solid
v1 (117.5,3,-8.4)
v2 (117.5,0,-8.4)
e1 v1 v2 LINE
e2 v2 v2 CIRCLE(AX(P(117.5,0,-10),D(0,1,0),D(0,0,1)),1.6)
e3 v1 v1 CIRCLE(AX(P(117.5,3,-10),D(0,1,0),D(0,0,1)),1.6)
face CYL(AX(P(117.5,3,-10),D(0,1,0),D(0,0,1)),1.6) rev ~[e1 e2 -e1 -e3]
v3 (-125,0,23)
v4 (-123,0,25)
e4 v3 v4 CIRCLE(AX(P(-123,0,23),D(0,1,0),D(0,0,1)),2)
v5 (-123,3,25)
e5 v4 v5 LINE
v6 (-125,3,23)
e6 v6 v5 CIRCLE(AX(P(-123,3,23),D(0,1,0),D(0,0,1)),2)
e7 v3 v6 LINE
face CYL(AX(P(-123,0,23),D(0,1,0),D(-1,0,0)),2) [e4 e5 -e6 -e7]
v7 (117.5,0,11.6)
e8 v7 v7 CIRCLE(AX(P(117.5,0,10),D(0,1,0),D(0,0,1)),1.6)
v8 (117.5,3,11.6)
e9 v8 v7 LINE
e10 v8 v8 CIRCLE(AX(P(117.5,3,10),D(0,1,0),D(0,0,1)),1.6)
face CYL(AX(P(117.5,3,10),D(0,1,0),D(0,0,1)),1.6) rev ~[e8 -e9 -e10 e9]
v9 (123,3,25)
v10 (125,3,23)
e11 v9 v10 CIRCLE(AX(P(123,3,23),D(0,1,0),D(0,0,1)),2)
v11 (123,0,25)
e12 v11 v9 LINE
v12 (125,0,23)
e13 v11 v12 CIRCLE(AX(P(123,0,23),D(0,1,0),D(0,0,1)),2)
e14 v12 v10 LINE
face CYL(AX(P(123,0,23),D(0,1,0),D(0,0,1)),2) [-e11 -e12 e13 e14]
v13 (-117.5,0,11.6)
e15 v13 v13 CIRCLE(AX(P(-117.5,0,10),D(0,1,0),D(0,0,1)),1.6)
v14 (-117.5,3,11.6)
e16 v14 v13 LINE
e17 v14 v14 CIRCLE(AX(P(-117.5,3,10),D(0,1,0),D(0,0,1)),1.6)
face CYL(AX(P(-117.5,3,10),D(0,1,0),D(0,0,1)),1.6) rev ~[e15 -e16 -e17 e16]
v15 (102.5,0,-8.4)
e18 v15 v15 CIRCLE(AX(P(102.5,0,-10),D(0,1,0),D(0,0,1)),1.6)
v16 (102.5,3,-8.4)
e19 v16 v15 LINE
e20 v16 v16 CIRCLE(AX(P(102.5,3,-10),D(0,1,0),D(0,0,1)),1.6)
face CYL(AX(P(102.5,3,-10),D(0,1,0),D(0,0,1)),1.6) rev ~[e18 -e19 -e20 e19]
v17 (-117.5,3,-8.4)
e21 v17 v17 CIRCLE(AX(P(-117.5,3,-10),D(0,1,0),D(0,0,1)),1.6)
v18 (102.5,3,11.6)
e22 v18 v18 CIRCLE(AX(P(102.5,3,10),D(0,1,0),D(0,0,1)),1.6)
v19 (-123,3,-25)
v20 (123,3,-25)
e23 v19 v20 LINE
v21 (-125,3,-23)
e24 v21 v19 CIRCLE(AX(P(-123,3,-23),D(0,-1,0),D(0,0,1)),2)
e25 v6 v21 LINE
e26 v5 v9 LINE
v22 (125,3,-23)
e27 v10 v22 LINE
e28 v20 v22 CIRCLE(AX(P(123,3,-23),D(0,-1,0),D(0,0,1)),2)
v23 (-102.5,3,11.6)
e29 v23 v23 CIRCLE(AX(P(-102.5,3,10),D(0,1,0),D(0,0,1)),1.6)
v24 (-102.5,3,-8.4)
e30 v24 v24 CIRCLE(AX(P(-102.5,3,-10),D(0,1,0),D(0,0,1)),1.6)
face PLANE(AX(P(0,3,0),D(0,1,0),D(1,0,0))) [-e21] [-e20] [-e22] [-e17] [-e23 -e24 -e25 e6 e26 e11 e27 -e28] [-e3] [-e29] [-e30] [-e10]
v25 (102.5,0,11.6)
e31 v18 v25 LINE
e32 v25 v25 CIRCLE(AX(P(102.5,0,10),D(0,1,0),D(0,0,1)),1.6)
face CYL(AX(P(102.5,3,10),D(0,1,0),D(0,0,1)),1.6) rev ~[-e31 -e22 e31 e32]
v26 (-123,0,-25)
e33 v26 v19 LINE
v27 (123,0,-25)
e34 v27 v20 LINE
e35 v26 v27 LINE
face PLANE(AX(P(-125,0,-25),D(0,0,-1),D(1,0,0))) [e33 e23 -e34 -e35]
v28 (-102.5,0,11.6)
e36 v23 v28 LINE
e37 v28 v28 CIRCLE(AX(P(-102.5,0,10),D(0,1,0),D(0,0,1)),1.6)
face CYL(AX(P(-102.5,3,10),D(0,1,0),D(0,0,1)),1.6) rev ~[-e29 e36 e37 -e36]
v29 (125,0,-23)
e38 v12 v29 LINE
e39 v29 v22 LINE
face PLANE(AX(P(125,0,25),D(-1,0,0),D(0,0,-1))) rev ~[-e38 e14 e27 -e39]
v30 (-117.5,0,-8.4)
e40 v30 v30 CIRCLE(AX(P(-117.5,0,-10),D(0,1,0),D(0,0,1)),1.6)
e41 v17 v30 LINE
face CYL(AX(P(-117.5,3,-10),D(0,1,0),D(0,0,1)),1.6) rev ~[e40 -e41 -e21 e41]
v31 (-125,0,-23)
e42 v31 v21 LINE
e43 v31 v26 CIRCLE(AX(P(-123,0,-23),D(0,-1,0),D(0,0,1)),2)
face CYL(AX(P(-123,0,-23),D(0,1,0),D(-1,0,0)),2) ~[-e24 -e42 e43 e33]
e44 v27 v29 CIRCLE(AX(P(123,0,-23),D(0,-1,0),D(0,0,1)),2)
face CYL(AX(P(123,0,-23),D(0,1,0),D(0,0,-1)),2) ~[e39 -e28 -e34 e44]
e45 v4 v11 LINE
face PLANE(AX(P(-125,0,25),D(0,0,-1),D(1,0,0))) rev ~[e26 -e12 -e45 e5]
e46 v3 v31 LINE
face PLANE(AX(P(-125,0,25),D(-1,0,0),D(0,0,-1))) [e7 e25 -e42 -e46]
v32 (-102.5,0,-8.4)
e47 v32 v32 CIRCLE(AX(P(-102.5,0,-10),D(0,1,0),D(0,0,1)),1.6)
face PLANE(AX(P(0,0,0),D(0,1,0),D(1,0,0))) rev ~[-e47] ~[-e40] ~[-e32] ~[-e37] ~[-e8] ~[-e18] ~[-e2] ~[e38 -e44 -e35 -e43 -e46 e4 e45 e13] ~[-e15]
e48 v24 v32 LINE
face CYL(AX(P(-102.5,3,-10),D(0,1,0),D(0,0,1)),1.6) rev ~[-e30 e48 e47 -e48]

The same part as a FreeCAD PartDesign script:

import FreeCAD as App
import Part
import Sketcher
from FreeCAD import Vector
Q = App.Units.Quantity


def edges_at(feature, points):
    """Names of the edges that pass closest to the given points."""
    edges = feature.Shape.Edges
    near = lambda p: min(range(len(edges)), key=lambda i: edges[i].distToShape(Part.Vertex(*p))[0])
    return sorted({f"Edge{near(p) + 1}" for p in points})


def add_polygon(sketch, points):
    """Adds a closed chain of lines whose ends are joined by coincident constraints."""
    first, n = sketch.GeometryCount, len(points)
    for a, b in zip(points, points[1:] + points[:1]):
        sketch.addGeometry(Part.LineSegment(App.Vector(*a, 0), App.Vector(*b, 0)), False)
    for i in range(n):
        sketch.addConstraint(Sketcher.Constraint("Coincident", first + i, 2, first + (i + 1) % n, 1))

doc = App.newDocument("Part")
body = doc.addObject("PartDesign::Body", "Body")

sketch1 = doc.addObject("Sketcher::SketchObject", "Sketch")
body.addObject(sketch1)
sketch1.AttachmentSupport = (doc.XZ_Plane, [""])
sketch1.MapMode = "FlatFace"
add_polygon(sketch1, [(-125, -25), (-125, 25), (125, 25), (125, -25)])
sketch1.addConstraint([
    Sketcher.Constraint("Vertical", 0),
    Sketcher.Constraint("Horizontal", 1),
    Sketcher.Constraint("Vertical", 2),
    Sketcher.Constraint("Horizontal", 3),
    Sketcher.Constraint("Symmetric", 0, 2, 2, 2, -1, 1),
    Sketcher.Constraint("DistanceX", 1, 1, 1, 2, Q("250 mm")),
    Sketcher.Constraint("DistanceY", 0, 1, 0, 2, Q("50 mm")),
])
pad1 = doc.addObject("PartDesign::Pad", "Pad")
body.addObject(pad1)
pad1.Profile = sketch1
pad1.Length = 3
pad1.Reversed = True

sketch2 = doc.addObject("Sketcher::SketchObject", "Sketch001")
body.addObject(sketch2)
sketch2.AttachmentSupport = (doc.XZ_Plane, [""])
sketch2.MapMode = "FlatFace"
sketch2.AttachmentOffset = App.Placement(Vector(0, 0, -3), App.Rotation())
sketch2.addGeometry(Part.Circle(Vector(-117.5, -10, 0), Vector(0, 0, 1), 1.6), False)
sketch2.addConstraint([
    Sketcher.Constraint("Diameter", 0, Q("3.2 mm")),
    Sketcher.Constraint("DistanceY", 0, 3, -1, 1, Q("10 mm")),
    Sketcher.Constraint("DistanceX", 0, 3, -1, 1, Q("117.5 mm")),
])
pocket1 = doc.addObject("PartDesign::Pocket", "Pocket")
body.addObject(pocket1)
pocket1.Profile = sketch2
pocket1.Type = "UpToFirst"
pocket1.Reversed = True

sketch3 = doc.addObject("Sketcher::SketchObject", "Sketch002")
body.addObject(sketch3)
sketch3.AttachmentSupport = (doc.XZ_Plane, [""])
sketch3.MapMode = "FlatFace"
sketch3.AttachmentOffset = App.Placement(Vector(0, 0, -3), App.Rotation())
sketch3.addGeometry(Part.Circle(Vector(-102.5, -10, 0), Vector(0, 0, 1), 1.6), False)
sketch3.addConstraint([
    Sketcher.Constraint("Diameter", 0, Q("3.2 mm")),
    Sketcher.Constraint("DistanceY", 0, 3, -1, 1, Q("10 mm")),
    Sketcher.Constraint("DistanceX", 0, 3, -1, 1, Q("102.5 mm")),
])
pocket2 = doc.addObject("PartDesign::Pocket", "Pocket001")
body.addObject(pocket2)
pocket2.Profile = sketch3
pocket2.Type = "UpToFirst"
pocket2.Reversed = True

sketch4 = doc.addObject("Sketcher::SketchObject", "Sketch003")
body.addObject(sketch4)
sketch4.AttachmentSupport = (doc.XZ_Plane, [""])
sketch4.MapMode = "FlatFace"
sketch4.AttachmentOffset = App.Placement(Vector(0, 0, -3), App.Rotation())
sketch4.addGeometry(Part.Circle(Vector(-102.5, 10, 0), Vector(0, 0, 1), 1.6), False)
sketch4.addConstraint([
    Sketcher.Constraint("Diameter", 0, Q("3.2 mm")),
    Sketcher.Constraint("DistanceY", -1, 1, 0, 3, Q("10 mm")),
    Sketcher.Constraint("DistanceX", 0, 3, -1, 1, Q("102.5 mm")),
])
pocket3 = doc.addObject("PartDesign::Pocket", "Pocket002")
body.addObject(pocket3)
pocket3.Profile = sketch4
pocket3.Type = "UpToFirst"
pocket3.Reversed = True

sketch5 = doc.addObject("Sketcher::SketchObject", "Sketch004")
body.addObject(sketch5)
sketch5.AttachmentSupport = (doc.XZ_Plane, [""])
sketch5.MapMode = "FlatFace"
sketch5.AttachmentOffset = App.Placement(Vector(0, 0, -3), App.Rotation())
sketch5.addGeometry(Part.Circle(Vector(-117.5, 10, 0), Vector(0, 0, 1), 1.6), False)
sketch5.addConstraint([
    Sketcher.Constraint("Diameter", 0, Q("3.2 mm")),
    Sketcher.Constraint("DistanceY", -1, 1, 0, 3, Q("10 mm")),
    Sketcher.Constraint("DistanceX", 0, 3, -1, 1, Q("117.5 mm")),
])
pocket4 = doc.addObject("PartDesign::Pocket", "Pocket003")
body.addObject(pocket4)
pocket4.Profile = sketch5
pocket4.Type = "UpToFirst"
pocket4.Reversed = True

sketch6 = doc.addObject("Sketcher::SketchObject", "Sketch005")
body.addObject(sketch6)
sketch6.AttachmentSupport = (doc.XZ_Plane, [""])
sketch6.MapMode = "FlatFace"
sketch6.AttachmentOffset = App.Placement(Vector(0, 0, -3), App.Rotation())
sketch6.addGeometry(Part.Circle(Vector(117.5, 10, 0), Vector(0, 0, 1), 1.6), False)
sketch6.addConstraint([
    Sketcher.Constraint("Diameter", 0, Q("3.2 mm")),
    Sketcher.Constraint("DistanceY", -1, 1, 0, 3, Q("10 mm")),
    Sketcher.Constraint("DistanceX", -1, 1, 0, 3, Q("117.5 mm")),
])
pocket5 = doc.addObject("PartDesign::Pocket", "Pocket004")
body.addObject(pocket5)
pocket5.Profile = sketch6
pocket5.Type = "UpToFirst"
pocket5.Reversed = True

sketch7 = doc.addObject("Sketcher::SketchObject", "Sketch006")
body.addObject(sketch7)
sketch7.AttachmentSupport = (doc.XZ_Plane, [""])
sketch7.MapMode = "FlatFace"
sketch7.AttachmentOffset = App.Placement(Vector(0, 0, -3), App.Rotation())
sketch7.addGeometry(Part.Circle(Vector(102.5, -10, 0), Vector(0, 0, 1), 1.6), False)
sketch7.addConstraint([
    Sketcher.Constraint("Diameter", 0, Q("3.2 mm")),
    Sketcher.Constraint("DistanceY", 0, 3, -1, 1, Q("10 mm")),
    Sketcher.Constraint("DistanceX", -1, 1, 0, 3, Q("102.5 mm")),
])
pocket6 = doc.addObject("PartDesign::Pocket", "Pocket005")
body.addObject(pocket6)
pocket6.Profile = sketch7
pocket6.Type = "UpToFirst"
pocket6.Reversed = True

sketch8 = doc.addObject("Sketcher::SketchObject", "Sketch007")
body.addObject(sketch8)
sketch8.AttachmentSupport = (doc.XZ_Plane, [""])
sketch8.MapMode = "FlatFace"
sketch8.AttachmentOffset = App.Placement(Vector(0, 0, -3), App.Rotation())
sketch8.addGeometry(Part.Circle(Vector(117.5, -10, 0), Vector(0, 0, 1), 1.6), False)
sketch8.addConstraint([
    Sketcher.Constraint("Diameter", 0, Q("3.2 mm")),
    Sketcher.Constraint("DistanceY", 0, 3, -1, 1, Q("10 mm")),
    Sketcher.Constraint("DistanceX", -1, 1, 0, 3, Q("117.5 mm")),
])
pocket7 = doc.addObject("PartDesign::Pocket", "Pocket006")
body.addObject(pocket7)
pocket7.Profile = sketch8
pocket7.Type = "UpToFirst"
pocket7.Reversed = True

sketch9 = doc.addObject("Sketcher::SketchObject", "Sketch008")
body.addObject(sketch9)
sketch9.AttachmentSupport = (doc.XZ_Plane, [""])
sketch9.MapMode = "FlatFace"
sketch9.AttachmentOffset = App.Placement(Vector(0, 0, -3), App.Rotation())
sketch9.addGeometry(Part.Circle(Vector(102.5, 10, 0), Vector(0, 0, 1), 1.6), False)
sketch9.addConstraint([
    Sketcher.Constraint("Diameter", 0, Q("3.2 mm")),
    Sketcher.Constraint("DistanceY", -1, 1, 0, 3, Q("10 mm")),
    Sketcher.Constraint("DistanceX", -1, 1, 0, 3, Q("102.5 mm")),
])
pocket8 = doc.addObject("PartDesign::Pocket", "Pocket007")
body.addObject(pocket8)
pocket8.Profile = sketch9
pocket8.Type = "UpToFirst"
pocket8.Reversed = True
doc.recompute()

fillet = doc.addObject("PartDesign::Fillet", "Fillet")
body.addObject(fillet)
fillet.Base = (pocket8, edges_at(pocket8, [
    (125, 1.5, 25),
    (-125, 1.5, 25),
    (-125, 1.5, -25),
    (125, 1.5, -25),
]))
fillet.Radius = 2

doc.recompute()
